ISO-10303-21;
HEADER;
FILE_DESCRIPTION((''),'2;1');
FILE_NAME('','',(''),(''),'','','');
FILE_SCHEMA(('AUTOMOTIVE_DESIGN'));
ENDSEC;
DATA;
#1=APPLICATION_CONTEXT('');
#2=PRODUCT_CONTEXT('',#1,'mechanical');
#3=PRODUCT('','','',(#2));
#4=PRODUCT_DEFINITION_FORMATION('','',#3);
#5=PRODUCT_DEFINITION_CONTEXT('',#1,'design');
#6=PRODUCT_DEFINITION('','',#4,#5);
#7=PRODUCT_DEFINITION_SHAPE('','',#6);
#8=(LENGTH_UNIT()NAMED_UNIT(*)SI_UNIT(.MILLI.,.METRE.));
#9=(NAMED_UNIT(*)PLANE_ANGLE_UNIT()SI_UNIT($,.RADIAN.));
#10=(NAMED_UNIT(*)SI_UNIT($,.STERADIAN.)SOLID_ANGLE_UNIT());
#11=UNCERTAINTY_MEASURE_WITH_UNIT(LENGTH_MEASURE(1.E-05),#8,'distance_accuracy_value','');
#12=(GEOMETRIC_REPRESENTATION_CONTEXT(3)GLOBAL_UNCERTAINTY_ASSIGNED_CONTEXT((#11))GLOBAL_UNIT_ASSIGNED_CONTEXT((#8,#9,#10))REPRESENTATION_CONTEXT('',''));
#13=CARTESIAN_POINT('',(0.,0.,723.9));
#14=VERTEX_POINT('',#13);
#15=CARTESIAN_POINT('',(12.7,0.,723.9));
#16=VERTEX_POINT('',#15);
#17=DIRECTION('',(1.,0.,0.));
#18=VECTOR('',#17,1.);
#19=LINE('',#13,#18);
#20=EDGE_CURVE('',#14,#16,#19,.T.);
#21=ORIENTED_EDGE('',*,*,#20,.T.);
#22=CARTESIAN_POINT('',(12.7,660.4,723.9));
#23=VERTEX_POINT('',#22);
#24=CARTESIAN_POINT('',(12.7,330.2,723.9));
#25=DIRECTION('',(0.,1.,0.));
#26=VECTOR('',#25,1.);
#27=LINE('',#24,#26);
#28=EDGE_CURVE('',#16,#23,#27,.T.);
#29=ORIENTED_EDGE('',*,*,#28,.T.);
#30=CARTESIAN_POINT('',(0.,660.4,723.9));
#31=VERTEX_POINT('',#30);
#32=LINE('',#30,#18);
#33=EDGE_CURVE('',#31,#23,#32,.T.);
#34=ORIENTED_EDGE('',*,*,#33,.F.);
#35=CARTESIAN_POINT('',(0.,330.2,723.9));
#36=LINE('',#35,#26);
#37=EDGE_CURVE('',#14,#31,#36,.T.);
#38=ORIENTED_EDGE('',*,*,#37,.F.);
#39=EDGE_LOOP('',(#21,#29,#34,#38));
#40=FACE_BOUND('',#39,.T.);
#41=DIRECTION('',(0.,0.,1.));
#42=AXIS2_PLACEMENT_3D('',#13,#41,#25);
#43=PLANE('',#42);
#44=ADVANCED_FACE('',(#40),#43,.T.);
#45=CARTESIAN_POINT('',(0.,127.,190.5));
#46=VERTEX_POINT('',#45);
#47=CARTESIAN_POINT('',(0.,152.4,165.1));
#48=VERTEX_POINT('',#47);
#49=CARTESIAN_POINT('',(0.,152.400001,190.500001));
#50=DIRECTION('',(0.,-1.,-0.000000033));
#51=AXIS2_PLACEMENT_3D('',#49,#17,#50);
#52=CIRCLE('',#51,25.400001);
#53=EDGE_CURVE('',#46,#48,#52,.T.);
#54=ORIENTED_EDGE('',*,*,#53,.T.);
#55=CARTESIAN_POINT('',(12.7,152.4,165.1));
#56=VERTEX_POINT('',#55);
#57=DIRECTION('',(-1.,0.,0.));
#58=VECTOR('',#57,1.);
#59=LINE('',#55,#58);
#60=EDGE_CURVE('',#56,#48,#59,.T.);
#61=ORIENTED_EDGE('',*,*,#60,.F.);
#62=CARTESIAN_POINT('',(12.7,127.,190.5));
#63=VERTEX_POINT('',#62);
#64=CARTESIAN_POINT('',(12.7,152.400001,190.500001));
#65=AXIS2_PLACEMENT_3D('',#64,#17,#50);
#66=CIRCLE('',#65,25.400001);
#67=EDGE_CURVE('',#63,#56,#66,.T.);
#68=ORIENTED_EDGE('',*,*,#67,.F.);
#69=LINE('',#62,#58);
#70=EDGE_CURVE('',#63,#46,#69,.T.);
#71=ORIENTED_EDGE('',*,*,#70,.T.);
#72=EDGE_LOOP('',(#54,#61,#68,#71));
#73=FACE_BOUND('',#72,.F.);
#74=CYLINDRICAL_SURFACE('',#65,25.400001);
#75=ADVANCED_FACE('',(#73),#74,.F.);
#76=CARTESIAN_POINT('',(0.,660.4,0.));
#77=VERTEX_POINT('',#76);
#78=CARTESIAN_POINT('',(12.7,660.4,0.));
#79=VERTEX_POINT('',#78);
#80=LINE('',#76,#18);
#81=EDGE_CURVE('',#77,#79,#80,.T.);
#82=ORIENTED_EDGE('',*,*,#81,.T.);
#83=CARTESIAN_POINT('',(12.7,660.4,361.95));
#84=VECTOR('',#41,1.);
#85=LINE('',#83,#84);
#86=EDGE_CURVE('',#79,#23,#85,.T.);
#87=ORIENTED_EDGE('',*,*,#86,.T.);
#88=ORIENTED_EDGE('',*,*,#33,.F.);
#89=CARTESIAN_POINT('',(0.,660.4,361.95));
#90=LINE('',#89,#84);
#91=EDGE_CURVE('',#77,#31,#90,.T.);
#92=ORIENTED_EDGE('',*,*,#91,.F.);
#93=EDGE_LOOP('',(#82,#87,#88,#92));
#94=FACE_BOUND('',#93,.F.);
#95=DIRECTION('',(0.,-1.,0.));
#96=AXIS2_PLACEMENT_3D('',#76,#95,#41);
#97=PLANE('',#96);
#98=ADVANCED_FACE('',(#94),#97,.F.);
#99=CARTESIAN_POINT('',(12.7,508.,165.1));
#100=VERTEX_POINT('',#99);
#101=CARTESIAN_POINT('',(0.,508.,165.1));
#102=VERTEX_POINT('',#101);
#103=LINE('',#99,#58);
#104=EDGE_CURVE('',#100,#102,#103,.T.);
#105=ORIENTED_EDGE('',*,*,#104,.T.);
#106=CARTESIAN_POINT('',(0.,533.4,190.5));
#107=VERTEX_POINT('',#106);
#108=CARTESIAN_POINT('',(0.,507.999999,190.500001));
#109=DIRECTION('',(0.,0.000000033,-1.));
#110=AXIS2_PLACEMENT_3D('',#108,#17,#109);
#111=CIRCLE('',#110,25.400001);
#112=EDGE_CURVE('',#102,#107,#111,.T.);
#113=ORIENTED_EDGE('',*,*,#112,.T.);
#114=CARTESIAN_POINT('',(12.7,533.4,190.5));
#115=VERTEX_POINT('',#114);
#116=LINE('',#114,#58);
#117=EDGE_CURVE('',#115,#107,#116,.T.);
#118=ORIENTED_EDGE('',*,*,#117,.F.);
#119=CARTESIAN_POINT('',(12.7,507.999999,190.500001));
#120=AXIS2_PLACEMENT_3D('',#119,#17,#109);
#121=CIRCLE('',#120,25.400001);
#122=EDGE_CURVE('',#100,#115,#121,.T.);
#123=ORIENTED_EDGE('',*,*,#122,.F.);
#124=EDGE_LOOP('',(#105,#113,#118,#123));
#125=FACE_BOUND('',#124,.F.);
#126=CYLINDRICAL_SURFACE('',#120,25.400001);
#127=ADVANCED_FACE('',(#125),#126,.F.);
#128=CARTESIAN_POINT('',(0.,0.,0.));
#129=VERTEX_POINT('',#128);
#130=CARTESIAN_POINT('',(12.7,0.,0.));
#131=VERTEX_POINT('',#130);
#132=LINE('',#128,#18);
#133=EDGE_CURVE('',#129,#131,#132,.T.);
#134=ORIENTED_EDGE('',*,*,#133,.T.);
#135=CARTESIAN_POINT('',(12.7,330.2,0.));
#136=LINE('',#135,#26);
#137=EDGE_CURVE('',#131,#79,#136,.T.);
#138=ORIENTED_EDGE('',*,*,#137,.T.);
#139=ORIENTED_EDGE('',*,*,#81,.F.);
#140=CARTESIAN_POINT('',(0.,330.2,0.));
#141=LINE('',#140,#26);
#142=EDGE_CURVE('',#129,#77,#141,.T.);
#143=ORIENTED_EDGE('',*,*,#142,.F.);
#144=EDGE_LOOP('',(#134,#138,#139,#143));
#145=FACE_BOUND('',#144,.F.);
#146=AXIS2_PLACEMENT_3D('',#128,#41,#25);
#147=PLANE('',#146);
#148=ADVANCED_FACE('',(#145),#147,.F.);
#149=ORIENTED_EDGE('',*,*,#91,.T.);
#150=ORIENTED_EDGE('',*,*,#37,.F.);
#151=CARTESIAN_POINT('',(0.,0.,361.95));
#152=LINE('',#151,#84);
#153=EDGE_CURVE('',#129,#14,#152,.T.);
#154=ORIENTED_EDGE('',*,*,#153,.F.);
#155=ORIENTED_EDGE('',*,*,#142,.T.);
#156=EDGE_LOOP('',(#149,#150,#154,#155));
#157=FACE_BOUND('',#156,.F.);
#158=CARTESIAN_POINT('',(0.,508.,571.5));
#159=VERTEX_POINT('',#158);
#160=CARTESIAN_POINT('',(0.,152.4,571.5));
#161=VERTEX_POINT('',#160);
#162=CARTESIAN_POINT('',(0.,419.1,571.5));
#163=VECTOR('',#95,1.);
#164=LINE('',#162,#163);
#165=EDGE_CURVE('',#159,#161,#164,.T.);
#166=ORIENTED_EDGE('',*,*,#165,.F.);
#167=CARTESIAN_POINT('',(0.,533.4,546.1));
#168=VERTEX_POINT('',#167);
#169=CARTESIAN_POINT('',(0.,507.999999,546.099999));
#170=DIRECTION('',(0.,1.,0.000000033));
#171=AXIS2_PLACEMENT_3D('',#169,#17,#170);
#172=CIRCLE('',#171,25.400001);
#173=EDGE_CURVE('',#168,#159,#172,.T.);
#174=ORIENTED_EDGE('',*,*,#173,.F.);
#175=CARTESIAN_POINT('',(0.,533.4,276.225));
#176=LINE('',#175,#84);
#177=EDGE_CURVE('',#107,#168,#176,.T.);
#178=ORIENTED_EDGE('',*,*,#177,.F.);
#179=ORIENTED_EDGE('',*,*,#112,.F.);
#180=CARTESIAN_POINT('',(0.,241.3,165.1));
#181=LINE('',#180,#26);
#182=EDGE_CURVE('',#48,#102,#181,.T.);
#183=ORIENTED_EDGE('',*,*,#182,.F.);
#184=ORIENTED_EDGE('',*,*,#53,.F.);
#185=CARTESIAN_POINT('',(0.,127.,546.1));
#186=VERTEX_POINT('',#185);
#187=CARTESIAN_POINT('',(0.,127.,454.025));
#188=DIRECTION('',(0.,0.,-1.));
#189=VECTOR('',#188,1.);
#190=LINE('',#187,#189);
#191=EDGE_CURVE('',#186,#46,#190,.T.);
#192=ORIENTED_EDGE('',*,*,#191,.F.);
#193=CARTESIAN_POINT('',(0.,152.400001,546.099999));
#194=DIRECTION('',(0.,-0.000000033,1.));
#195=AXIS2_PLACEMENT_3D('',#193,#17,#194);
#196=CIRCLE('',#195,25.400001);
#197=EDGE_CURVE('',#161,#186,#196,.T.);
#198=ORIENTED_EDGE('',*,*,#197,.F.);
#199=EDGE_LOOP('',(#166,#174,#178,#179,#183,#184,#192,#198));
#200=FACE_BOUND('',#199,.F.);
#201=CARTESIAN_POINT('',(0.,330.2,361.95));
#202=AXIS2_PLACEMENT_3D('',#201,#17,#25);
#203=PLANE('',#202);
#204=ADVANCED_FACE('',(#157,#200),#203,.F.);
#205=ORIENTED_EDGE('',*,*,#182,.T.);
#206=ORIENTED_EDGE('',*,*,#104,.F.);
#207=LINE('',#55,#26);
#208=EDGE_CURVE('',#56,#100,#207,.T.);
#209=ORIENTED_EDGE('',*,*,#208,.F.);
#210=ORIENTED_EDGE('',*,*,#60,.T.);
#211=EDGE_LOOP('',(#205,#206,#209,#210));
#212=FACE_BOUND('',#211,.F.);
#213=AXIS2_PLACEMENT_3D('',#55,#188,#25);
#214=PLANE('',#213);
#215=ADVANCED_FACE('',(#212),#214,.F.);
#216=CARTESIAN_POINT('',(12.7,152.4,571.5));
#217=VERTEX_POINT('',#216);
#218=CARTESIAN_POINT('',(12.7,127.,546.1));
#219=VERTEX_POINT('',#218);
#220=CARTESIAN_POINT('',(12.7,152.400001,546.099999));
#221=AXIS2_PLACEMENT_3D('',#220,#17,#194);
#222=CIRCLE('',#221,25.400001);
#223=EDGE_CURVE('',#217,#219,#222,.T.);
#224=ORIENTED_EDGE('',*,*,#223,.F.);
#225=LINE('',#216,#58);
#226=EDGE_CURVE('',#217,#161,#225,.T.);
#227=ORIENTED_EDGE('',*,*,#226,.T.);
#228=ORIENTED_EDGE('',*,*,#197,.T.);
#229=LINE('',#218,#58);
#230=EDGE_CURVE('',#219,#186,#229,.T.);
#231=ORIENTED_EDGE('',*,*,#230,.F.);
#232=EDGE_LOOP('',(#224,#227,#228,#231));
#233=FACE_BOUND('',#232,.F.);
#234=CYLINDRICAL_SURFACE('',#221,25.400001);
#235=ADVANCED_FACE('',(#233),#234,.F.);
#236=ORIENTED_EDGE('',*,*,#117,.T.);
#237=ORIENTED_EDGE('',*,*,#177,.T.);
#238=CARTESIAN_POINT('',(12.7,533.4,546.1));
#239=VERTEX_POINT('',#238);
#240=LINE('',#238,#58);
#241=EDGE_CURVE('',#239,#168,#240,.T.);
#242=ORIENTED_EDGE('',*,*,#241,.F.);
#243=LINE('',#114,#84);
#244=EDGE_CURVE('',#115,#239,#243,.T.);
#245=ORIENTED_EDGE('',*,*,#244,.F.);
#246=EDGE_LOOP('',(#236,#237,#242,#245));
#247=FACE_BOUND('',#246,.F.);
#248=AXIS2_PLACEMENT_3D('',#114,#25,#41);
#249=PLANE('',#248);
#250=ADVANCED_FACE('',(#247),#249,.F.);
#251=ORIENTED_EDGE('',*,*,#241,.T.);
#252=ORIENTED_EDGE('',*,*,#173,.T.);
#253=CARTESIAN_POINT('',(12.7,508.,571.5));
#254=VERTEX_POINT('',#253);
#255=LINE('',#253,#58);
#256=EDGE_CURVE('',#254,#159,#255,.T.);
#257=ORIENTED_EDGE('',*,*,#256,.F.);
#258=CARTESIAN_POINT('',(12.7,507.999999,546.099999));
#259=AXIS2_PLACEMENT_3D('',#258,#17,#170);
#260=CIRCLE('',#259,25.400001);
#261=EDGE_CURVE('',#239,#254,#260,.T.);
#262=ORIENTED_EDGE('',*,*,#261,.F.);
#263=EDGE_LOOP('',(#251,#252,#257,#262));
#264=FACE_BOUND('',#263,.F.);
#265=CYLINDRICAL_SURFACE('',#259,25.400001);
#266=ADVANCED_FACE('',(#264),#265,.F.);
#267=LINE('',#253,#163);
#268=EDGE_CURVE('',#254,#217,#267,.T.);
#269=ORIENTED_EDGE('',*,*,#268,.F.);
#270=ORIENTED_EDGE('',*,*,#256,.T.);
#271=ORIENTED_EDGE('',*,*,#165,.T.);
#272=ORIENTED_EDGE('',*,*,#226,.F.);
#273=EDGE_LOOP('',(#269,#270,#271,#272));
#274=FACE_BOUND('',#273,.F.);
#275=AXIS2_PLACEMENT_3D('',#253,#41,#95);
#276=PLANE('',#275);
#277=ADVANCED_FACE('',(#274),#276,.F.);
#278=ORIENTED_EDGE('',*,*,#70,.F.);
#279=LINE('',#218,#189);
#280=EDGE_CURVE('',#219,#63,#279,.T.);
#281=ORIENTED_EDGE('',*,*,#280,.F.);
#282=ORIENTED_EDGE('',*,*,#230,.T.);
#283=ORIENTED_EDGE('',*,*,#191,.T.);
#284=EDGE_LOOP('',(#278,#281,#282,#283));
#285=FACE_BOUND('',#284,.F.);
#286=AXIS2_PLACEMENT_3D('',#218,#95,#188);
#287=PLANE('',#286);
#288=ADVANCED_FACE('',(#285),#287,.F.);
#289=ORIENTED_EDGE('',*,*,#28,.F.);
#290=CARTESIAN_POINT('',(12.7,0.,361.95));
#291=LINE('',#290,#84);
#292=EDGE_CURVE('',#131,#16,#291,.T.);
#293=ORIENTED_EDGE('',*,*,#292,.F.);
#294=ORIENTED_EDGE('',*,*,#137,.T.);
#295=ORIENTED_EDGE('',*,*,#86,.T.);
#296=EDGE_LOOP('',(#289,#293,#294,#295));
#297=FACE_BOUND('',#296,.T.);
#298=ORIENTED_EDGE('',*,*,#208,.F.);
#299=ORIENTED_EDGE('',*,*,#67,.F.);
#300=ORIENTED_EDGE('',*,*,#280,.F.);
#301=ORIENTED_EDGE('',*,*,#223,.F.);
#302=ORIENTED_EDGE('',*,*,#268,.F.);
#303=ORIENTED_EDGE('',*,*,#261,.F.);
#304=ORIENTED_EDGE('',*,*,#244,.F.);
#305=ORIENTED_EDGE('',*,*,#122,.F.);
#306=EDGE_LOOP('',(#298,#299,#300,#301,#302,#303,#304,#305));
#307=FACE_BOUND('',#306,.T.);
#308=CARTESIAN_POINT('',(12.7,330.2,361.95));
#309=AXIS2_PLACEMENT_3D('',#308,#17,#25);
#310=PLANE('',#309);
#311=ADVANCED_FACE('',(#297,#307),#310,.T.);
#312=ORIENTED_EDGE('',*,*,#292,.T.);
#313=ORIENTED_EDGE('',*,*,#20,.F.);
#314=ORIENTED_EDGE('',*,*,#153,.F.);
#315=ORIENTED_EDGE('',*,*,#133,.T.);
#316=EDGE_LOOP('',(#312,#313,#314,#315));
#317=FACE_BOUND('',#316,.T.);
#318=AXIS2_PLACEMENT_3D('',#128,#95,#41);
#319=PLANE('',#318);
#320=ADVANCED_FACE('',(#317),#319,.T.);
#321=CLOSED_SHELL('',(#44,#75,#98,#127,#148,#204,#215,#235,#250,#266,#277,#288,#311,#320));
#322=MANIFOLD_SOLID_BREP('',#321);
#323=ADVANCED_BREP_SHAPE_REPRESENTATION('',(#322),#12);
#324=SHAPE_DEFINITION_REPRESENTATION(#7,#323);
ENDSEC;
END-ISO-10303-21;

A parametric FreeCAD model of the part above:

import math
import FreeCAD as App
import Part
import Sketcher
from FreeCAD import Vector
Q = App.Units.Quantity

doc = App.newDocument("Part")
body = doc.addObject("PartDesign::Body", "Body")

# Sketch on YZ plane
sketch1 = body.newObject("Sketcher::SketchObject", "Sketch")
sketch1.AttachmentSupport = (doc.getObject("YZ_Plane"), [""])
sketch1.MapMode = "FlatFace"
sketch1.addGeometry([
    Part.LineSegment(Vector(0, 724, 0), Vector(0, 0, 0)),
    Part.LineSegment(Vector(0, 0, 0), Vector(660, 0, 0)),
    Part.LineSegment(Vector(660, 0, 0), Vector(660, 724, 0)),
    Part.LineSegment(Vector(660, 724, 0), Vector(0, 724, 0)),
], False)
sketch1.addConstraint([
    Sketcher.Constraint("Coincident", 0, 2, 1, 1),
    Sketcher.Constraint("Coincident", 1, 2, 2, 1),
    Sketcher.Constraint("Coincident", 2, 2, 3, 1),
    Sketcher.Constraint("Coincident", 3, 2, 0, 1),
    Sketcher.Constraint("Vertical", 0),
    Sketcher.Constraint("Horizontal", 1),
    Sketcher.Constraint("Vertical", 2),
    Sketcher.Constraint("Horizontal", 3),
    Sketcher.Constraint("Coincident", 0, 2, -1, 1),
    Sketcher.Constraint("DistanceX", 1, 1, 1, 2, Q("26 in")),
    Sketcher.Constraint("DistanceY", 0, 2, 0, 1, Q("28.5 in")),
])
pad1 = body.newObject("PartDesign::Pad", "Pad")
pad1.Profile = sketch1
pad1.Length = Q("0.5 in")

# Sketch on YZ plane
sketch2 = body.newObject("Sketcher::SketchObject", "Sketch001")
sketch2.AttachmentSupport = (doc.getObject("YZ_Plane"), [""])
sketch2.MapMode = "FlatFace"
sketch2.AttachmentOffset = App.Placement(Vector(0, 0, 0.5 * 25.4), App.Rotation())
sketch2.addGeometry([
    Part.LineSegment(Vector(508, 572, 0), Vector(152, 572, 0)),  # 0
    Part.ArcOfCircle(Part.Circle(Vector(152, 546, 0), Vector(0, 0, 1), 25), math.radians(90), math.radians(180)),  # 1
    Part.LineSegment(Vector(127, 546, 0), Vector(127, 190, 0)),  # 2
    Part.ArcOfCircle(Part.Circle(Vector(152, 191, 0), Vector(0, 0, 1), 25), math.radians(-180), math.radians(-90)),  # 3
    Part.LineSegment(Vector(152, 165, 0), Vector(508, 165, 0)),  # 4
    Part.ArcOfCircle(Part.Circle(Vector(508, 191, 0), Vector(0, 0, 1), 25), math.radians(-90), math.radians(0)),  # 5
    Part.LineSegment(Vector(533, 190, 0), Vector(533, 546, 0)),  # 6
    Part.ArcOfCircle(Part.Circle(Vector(508, 546, 0), Vector(0, 0, 1), 25), math.radians(0), math.radians(90)),  # 7
], False)
sketch2.addConstraint([
    Sketcher.Constraint("Tangent", 0, 2, 1, 1),
    Sketcher.Constraint("Tangent", 1, 2, 2, 1),
    Sketcher.Constraint("Tangent", 2, 2, 3, 1),
    Sketcher.Constraint("Tangent", 3, 2, 4, 1),
    Sketcher.Constraint("Tangent", 4, 2, 5, 1),
    Sketcher.Constraint("Tangent", 5, 2, 6, 1),
    Sketcher.Constraint("Tangent", 6, 2, 7, 1),
    Sketcher.Constraint("Tangent", 7, 2, 0, 1),
    Sketcher.Constraint("Horizontal", 0),
    Sketcher.Constraint("Vertical", 2),
    Sketcher.Constraint("Horizontal", 4),
    Sketcher.Constraint("Vertical", 6),
    Sketcher.Constraint("Equal", 1, 3),
    Sketcher.Constraint("Equal", 3, 5),
    Sketcher.Constraint("Equal", 5, 7),
    Sketcher.Constraint("Equal", 4, 2),
    Sketcher.Constraint("Radius", 1, Q("1 in")),
    Sketcher.Constraint("DistanceX", 0, 2, 0, 1, Q("14 in")),
    Sketcher.Constraint("DistanceX", -1, 1, 1, 3, Q("6 in")),
    Sketcher.Constraint("DistanceY", -1, 1, 1, 3, Q("21.5 in")),
])
pocket1 = body.newObject("PartDesign::Pocket", "Pocket")
pocket1.Profile = sketch2
pocket1.Type = "ThroughAll"

doc.recompute()
